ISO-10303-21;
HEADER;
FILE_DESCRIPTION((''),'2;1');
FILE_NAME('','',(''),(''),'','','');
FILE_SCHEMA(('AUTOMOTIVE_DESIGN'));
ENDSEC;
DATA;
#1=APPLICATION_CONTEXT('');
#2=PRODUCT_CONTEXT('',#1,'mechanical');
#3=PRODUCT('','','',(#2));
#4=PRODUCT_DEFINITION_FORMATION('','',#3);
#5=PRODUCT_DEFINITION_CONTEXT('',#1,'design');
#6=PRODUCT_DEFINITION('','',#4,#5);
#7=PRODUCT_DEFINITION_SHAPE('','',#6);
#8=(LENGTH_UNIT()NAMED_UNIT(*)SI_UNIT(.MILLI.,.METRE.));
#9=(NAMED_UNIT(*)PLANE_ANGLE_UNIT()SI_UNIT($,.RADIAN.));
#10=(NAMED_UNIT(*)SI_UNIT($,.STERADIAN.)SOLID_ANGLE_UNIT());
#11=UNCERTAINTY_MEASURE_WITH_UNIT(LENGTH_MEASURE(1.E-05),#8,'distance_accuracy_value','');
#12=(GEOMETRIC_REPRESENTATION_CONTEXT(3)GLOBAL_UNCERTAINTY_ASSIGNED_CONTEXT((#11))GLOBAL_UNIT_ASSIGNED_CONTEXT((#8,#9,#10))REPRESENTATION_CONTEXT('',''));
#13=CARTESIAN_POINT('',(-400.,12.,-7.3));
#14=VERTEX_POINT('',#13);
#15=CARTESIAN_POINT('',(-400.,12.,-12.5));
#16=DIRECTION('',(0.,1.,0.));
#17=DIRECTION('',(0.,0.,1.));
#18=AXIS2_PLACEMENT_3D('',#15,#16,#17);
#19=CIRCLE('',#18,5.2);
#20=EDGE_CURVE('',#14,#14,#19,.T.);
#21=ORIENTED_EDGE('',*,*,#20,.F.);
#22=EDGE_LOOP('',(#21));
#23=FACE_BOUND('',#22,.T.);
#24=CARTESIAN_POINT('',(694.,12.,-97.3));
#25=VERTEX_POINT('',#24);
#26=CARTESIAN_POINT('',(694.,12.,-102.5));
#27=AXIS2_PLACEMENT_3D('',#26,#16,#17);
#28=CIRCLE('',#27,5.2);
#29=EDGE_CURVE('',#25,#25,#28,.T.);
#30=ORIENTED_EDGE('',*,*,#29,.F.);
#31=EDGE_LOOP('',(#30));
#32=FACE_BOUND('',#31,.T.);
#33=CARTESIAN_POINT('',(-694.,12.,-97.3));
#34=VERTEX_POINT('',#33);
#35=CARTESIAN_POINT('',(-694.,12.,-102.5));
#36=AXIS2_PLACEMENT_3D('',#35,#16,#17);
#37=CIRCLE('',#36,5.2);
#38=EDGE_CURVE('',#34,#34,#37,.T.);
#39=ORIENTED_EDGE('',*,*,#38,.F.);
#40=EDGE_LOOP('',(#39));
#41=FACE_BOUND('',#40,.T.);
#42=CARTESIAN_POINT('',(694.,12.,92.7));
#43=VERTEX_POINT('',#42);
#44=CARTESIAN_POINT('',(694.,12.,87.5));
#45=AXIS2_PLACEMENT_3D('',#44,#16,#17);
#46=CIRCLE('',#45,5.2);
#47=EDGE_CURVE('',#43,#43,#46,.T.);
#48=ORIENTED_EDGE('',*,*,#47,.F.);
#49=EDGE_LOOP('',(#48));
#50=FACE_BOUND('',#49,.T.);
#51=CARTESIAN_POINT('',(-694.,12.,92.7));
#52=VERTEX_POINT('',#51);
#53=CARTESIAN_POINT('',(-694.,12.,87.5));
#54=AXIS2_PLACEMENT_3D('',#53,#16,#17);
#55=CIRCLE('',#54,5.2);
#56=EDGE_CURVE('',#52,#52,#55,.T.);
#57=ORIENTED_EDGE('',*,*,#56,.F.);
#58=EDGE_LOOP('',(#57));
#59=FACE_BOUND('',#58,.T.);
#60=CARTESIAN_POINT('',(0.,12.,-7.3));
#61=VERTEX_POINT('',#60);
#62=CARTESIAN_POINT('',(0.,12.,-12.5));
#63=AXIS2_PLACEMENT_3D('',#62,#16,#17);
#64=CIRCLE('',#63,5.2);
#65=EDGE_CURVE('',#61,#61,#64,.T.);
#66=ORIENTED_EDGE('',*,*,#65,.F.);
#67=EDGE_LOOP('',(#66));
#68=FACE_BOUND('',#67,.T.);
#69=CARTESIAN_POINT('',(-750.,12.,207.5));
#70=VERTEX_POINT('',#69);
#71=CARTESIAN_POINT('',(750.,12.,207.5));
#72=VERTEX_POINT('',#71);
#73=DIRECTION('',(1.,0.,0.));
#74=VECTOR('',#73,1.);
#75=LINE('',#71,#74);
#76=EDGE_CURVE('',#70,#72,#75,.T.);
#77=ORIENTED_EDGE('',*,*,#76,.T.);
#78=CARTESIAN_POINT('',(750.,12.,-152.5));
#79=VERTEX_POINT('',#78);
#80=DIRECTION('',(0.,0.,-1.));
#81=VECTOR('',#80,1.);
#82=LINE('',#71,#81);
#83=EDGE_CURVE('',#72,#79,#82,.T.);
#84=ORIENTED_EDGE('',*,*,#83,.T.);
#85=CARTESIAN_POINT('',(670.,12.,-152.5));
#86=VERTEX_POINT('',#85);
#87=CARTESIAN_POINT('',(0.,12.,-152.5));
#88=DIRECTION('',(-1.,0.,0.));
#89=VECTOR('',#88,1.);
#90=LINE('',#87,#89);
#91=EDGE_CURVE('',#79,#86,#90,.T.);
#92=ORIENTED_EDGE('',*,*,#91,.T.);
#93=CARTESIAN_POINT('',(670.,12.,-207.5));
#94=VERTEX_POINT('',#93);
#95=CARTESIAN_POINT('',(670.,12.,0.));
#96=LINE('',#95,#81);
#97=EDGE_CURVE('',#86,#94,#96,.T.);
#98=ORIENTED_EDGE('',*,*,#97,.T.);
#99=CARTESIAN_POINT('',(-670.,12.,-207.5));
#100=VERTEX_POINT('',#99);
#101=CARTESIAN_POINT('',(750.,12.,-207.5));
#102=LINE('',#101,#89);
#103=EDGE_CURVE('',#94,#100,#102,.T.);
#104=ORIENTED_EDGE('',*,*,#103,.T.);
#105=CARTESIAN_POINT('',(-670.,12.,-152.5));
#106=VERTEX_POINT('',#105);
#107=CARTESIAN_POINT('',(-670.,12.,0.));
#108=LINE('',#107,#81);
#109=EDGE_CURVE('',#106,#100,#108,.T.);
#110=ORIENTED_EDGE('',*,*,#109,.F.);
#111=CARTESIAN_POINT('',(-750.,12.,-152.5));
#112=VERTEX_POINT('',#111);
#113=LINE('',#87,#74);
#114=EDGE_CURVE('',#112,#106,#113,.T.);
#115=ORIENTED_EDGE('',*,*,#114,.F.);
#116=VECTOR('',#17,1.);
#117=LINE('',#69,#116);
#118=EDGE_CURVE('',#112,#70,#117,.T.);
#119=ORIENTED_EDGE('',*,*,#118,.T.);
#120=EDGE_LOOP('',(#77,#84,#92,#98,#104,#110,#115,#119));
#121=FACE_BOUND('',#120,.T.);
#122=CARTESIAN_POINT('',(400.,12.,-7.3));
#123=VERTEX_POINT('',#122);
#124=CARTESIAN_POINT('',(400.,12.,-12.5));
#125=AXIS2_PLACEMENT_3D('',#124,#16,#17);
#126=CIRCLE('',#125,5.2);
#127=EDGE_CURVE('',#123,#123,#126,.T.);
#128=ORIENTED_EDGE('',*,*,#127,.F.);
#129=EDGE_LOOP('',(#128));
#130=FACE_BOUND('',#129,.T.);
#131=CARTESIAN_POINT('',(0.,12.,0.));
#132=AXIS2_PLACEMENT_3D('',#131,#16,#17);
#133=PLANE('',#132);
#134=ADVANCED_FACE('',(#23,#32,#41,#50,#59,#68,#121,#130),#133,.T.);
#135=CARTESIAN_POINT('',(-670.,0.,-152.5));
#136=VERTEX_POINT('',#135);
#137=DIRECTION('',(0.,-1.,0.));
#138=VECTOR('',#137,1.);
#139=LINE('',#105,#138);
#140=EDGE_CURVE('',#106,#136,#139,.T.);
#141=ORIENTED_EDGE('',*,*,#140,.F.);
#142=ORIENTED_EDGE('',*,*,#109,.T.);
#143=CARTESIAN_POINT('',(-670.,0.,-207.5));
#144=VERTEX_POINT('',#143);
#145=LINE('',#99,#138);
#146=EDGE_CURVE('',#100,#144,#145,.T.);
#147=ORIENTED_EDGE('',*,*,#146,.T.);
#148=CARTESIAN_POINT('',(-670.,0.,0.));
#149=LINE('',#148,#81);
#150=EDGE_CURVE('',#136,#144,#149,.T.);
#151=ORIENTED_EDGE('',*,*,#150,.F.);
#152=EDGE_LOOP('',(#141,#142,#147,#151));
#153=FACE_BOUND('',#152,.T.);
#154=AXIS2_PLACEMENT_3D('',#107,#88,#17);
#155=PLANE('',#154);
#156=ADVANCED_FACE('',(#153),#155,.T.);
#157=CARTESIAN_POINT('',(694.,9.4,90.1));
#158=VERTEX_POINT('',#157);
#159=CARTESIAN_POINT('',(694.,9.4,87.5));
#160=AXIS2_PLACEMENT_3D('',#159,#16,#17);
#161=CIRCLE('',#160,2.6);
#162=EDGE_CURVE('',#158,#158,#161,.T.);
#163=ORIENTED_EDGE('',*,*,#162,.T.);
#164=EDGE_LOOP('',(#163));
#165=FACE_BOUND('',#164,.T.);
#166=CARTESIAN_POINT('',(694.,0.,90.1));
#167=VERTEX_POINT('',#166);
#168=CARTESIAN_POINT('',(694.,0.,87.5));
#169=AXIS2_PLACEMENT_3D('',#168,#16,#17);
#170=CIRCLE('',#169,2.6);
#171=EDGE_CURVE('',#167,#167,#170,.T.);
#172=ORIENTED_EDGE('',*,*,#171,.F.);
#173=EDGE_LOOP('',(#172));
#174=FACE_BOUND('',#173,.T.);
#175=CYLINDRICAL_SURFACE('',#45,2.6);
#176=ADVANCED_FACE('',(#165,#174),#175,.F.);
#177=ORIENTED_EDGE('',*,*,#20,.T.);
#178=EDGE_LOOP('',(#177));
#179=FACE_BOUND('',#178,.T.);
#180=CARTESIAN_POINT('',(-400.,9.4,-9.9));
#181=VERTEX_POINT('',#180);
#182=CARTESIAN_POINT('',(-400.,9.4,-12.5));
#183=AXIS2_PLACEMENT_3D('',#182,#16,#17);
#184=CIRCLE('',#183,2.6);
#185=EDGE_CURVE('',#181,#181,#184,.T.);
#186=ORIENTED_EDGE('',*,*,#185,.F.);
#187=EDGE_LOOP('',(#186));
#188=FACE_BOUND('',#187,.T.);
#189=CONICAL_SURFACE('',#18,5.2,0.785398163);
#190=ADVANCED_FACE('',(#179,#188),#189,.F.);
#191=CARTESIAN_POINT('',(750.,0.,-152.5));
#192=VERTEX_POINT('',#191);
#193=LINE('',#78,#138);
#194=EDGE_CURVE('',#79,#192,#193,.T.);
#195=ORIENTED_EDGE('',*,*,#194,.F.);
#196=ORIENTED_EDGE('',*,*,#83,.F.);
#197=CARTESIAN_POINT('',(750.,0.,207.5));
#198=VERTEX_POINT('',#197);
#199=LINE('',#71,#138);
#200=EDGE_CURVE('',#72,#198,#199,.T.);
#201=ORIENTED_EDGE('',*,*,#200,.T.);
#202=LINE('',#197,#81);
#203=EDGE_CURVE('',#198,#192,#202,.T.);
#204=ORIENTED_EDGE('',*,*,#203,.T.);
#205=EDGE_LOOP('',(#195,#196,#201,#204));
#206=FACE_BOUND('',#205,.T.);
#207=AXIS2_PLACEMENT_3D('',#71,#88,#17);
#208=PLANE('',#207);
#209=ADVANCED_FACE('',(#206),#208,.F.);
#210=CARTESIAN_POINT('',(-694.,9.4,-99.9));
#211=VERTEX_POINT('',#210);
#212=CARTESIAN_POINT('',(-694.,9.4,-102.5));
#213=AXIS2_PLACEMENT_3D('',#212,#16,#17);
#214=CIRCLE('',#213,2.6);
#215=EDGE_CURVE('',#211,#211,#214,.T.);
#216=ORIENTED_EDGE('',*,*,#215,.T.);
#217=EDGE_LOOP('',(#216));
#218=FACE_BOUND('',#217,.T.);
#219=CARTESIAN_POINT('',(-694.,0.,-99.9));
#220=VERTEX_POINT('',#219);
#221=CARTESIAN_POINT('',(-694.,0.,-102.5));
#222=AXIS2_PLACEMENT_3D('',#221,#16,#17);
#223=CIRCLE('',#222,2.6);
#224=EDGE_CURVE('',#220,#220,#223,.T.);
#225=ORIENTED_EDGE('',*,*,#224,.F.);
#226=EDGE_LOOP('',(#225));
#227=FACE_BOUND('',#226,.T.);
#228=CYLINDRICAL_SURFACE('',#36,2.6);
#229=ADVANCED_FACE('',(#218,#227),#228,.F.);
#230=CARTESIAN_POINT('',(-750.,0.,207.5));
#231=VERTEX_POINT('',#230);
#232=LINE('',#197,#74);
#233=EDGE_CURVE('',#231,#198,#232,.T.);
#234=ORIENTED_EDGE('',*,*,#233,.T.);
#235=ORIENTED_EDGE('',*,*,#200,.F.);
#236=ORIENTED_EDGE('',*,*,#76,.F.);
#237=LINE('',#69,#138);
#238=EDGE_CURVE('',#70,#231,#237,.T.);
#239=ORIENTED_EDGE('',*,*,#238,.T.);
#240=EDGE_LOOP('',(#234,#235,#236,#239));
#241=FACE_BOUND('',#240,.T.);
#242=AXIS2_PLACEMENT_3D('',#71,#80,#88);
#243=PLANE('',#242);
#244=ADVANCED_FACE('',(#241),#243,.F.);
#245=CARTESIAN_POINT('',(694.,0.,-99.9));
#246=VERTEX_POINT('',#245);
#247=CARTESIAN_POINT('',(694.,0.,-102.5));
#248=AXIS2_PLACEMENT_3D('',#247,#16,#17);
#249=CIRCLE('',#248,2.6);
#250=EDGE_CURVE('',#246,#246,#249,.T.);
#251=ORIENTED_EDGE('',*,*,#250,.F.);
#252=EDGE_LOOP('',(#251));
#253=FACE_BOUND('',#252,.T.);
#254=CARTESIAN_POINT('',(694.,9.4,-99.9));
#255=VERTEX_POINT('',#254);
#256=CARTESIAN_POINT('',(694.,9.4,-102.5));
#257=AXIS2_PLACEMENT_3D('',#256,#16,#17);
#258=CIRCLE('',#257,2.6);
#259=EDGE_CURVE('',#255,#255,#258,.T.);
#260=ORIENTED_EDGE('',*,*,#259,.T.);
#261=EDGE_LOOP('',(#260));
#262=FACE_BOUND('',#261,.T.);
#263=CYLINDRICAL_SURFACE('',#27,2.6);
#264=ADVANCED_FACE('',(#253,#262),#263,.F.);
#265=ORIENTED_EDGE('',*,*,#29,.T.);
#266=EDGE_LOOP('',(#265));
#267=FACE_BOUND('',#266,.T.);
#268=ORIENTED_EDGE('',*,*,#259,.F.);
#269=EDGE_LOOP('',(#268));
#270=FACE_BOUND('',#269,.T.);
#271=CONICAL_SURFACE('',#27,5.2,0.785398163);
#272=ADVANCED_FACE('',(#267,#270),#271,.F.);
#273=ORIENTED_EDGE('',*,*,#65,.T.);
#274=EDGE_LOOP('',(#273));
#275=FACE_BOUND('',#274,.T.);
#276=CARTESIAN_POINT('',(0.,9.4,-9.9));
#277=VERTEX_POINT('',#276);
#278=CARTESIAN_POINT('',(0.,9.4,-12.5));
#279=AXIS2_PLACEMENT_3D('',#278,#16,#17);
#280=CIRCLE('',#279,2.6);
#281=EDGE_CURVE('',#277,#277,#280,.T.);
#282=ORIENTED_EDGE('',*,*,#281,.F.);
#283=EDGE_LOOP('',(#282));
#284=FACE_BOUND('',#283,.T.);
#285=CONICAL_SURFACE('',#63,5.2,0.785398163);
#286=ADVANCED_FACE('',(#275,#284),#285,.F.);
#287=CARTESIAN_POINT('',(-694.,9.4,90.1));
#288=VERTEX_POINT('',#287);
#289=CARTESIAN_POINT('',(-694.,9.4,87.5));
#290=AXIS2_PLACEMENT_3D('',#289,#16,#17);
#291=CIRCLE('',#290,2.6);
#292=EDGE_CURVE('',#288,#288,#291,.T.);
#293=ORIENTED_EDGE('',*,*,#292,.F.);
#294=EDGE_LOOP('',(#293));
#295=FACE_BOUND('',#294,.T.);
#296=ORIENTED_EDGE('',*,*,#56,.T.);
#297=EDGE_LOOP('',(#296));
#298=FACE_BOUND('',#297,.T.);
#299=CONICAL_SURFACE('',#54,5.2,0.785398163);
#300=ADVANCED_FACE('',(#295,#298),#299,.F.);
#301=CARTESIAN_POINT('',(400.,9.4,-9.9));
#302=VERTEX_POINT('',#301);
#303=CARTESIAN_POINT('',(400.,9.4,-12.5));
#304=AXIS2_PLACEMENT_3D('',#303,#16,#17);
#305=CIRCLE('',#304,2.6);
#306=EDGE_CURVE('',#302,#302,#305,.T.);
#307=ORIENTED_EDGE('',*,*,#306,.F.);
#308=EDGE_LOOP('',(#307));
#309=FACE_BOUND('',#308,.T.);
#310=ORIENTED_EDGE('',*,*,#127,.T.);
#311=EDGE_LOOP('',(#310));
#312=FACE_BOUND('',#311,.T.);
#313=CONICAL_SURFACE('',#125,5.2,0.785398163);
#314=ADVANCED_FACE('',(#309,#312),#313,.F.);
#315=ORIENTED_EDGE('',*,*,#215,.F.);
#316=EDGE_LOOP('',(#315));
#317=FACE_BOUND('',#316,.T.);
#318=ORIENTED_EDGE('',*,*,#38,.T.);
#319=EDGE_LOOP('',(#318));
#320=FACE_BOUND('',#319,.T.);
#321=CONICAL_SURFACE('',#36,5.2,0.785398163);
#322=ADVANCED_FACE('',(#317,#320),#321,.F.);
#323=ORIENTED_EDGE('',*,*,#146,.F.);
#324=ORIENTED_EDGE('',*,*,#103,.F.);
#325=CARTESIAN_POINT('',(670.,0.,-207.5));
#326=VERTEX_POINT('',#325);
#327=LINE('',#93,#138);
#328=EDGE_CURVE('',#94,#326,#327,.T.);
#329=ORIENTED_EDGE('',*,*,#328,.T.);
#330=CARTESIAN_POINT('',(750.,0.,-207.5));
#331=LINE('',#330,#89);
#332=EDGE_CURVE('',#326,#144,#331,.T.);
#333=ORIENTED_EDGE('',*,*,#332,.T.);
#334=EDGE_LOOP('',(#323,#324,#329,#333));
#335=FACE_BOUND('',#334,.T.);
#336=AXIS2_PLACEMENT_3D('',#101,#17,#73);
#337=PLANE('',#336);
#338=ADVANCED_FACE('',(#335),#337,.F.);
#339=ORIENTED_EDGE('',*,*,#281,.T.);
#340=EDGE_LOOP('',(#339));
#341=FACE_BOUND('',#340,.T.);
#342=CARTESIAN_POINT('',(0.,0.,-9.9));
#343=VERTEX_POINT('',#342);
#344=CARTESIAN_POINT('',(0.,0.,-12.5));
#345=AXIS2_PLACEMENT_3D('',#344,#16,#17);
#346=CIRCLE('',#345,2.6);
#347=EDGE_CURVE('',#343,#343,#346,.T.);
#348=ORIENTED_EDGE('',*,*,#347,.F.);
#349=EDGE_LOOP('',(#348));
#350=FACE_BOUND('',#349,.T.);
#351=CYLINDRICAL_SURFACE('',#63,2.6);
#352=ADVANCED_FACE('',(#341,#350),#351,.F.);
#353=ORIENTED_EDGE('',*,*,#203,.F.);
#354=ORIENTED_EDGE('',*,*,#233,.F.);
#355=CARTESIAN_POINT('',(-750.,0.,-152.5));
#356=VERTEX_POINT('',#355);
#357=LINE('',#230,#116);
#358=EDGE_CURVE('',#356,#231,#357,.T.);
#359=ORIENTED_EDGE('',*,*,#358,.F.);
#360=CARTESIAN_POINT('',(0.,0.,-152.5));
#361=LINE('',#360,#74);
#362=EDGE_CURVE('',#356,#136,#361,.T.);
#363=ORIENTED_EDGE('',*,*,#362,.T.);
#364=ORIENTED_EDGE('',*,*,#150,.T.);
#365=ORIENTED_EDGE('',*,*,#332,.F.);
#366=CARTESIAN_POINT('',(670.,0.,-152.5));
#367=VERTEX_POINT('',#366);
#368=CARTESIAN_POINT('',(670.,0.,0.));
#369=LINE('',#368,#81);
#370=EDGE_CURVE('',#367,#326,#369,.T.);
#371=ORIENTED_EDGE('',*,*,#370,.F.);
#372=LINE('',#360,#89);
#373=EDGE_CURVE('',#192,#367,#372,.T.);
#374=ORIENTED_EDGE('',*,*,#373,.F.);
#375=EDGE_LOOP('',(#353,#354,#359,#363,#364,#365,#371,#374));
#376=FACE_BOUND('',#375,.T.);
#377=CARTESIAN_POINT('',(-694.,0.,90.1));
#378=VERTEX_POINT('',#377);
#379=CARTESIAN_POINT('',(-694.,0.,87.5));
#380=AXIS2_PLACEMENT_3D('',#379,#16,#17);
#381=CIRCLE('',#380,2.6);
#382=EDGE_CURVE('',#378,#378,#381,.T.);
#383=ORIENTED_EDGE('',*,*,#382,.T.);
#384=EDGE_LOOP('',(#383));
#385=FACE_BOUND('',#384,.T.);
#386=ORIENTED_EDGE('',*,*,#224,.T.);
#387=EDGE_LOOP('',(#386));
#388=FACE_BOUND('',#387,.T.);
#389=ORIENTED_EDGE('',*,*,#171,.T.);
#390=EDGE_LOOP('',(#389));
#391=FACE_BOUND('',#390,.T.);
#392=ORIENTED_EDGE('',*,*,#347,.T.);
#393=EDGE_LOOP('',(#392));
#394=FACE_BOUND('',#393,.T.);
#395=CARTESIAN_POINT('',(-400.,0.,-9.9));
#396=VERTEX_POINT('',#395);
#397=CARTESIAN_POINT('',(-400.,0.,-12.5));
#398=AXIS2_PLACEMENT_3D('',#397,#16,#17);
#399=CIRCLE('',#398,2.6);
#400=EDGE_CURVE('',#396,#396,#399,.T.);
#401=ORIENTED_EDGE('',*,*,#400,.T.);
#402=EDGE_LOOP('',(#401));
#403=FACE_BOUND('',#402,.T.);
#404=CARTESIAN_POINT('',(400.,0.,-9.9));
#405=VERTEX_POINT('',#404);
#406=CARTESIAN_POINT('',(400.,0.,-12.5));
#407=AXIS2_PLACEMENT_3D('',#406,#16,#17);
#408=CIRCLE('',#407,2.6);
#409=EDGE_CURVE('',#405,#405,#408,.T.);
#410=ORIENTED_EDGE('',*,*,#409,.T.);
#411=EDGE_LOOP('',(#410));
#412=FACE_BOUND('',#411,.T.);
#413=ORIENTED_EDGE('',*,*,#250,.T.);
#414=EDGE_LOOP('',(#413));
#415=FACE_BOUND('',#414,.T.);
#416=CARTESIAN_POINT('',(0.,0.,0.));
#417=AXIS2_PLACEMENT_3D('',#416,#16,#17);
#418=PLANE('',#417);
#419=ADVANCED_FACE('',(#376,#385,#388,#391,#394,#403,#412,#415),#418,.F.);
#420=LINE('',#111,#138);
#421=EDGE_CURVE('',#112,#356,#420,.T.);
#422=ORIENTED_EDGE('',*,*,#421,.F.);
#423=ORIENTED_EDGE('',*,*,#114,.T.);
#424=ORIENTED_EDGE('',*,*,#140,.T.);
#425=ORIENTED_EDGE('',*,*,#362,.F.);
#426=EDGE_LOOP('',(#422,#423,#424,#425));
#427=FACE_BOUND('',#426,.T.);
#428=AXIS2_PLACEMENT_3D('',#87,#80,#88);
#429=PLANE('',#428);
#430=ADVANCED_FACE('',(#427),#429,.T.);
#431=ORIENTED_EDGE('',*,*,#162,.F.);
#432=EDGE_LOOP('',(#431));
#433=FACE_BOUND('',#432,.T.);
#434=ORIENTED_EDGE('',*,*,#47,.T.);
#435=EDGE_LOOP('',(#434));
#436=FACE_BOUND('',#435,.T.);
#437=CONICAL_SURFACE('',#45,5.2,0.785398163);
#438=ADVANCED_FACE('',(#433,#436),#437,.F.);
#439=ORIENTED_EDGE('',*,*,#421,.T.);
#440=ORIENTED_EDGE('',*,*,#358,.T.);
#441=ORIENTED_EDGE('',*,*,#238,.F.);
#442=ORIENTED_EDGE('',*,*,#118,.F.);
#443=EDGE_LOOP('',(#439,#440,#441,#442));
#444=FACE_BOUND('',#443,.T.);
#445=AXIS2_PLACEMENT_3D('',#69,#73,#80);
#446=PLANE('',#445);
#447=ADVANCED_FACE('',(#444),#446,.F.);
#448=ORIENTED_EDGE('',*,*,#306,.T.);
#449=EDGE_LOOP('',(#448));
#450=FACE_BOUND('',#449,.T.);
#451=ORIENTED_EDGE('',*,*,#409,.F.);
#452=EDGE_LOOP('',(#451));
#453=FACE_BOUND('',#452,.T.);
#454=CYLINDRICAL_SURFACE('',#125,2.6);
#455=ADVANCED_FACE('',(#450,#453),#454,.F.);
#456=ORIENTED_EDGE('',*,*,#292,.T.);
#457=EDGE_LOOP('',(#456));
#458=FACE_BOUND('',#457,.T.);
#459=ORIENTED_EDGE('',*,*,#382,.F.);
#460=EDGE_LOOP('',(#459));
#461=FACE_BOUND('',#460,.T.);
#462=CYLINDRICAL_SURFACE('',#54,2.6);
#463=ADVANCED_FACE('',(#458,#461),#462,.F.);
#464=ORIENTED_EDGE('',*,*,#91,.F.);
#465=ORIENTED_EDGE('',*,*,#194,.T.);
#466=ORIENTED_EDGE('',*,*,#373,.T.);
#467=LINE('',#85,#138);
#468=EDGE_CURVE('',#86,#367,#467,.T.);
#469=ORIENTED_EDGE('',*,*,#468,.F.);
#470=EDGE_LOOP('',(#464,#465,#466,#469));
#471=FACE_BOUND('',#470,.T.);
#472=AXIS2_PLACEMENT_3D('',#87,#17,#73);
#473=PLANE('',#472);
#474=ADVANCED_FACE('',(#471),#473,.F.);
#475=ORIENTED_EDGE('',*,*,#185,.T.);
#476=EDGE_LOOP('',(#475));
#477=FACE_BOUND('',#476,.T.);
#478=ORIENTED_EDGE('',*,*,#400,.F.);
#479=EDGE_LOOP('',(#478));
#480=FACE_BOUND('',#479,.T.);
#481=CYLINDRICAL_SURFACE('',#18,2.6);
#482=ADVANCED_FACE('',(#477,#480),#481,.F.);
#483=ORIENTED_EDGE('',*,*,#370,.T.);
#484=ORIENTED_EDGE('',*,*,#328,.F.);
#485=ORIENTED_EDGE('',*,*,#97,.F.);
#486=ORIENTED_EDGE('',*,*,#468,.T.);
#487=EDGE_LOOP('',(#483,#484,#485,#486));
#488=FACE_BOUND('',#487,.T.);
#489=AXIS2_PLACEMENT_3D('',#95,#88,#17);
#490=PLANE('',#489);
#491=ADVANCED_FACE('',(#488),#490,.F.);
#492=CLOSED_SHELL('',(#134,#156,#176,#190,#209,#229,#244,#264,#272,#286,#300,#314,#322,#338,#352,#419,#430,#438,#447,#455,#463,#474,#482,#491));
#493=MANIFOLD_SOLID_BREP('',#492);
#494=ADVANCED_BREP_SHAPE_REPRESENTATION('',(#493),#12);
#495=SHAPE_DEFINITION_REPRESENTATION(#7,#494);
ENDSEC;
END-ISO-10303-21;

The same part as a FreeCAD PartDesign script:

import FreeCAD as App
import Part
import Sketcher
from FreeCAD import Vector


def add_polygon(sketch, points):
    """Adds a closed chain of lines whose ends are joined by coincident constraints."""
    first, n = sketch.GeometryCount, len(points)
    for a, b in zip(points, points[1:] + points[:1]):
        sketch.addGeometry(Part.LineSegment(App.Vector(*a, 0), App.Vector(*b, 0)), False)
    for i in range(n):
        sketch.addConstraint(Sketcher.Constraint("Coincident", first + i, 2, first + (i + 1) % n, 1))

doc = App.newDocument("Part")
body = doc.addObject("PartDesign::Body", "Body")

# Sketch on XZ plane
sketch1 = body.newObject("Sketcher::SketchObject", "Sketch")
sketch1.AttachmentSupport = (doc.getObject("XZ_Plane"), [""])
sketch1.MapMode = "FlatFace"
add_polygon(sketch1, [(-750, -208), (-750, 208), (750, 208), (750, -208)])  # lines 0-3
sketch1.addConstraint([
    Sketcher.Constraint("Vertical", 0),
    Sketcher.Constraint("Horizontal", 1),
    Sketcher.Constraint("Vertical", 2),
    Sketcher.Constraint("Horizontal", 3),
    Sketcher.Constraint("Symmetric", 0, 2, 2, 2, -1, 1),
    Sketcher.Constraint("DistanceX", 1, 1, 1, 2, 1500.0),
    Sketcher.Constraint("DistanceY", 0, 1, 0, 2, 415.0),
])
pad1 = body.newObject("PartDesign::Pad", "Pad")
pad1.Profile = sketch1
pad1.Length = 12
pad1.Reversed = True

# Sketch on XZ plane
sketch2 = body.newObject("Sketcher::SketchObject", "Sketch001")
sketch2.AttachmentSupport = (doc.getObject("XZ_Plane"), [""])
sketch2.MapMode = "FlatFace"
sketch2.AttachmentOffset = App.Placement(Vector(0, 0, -12), App.Rotation())
sketch2.addGeometry([
    Part.Circle(Vector(694, -102.5, 0), Vector(0, 0, 1), 2.6),  # 0
    Part.Circle(Vector(694, 87.5, 0), Vector(0, 0, 1), 2.6),  # 1
    Part.Circle(Vector(400, -12.5, 0), Vector(0, 0, 1), 2.6),  # 2
    Part.Circle(Vector(-400, -12.5, 0), Vector(0, 0, 1), 2.6),  # 3
    Part.Circle(Vector(-694, 87.5, 0), Vector(0, 0, 1), 2.6),  # 4
    Part.Circle(Vector(-694, -102.5, 0), Vector(0, 0, 1), 2.6),  # 5
    Part.Circle(Vector(0, -12.5, 0), Vector(0, 0, 1), 2.6),  # 6
], False)
sketch2.addConstraint([
    Sketcher.Constraint("Equal", 0, 1),
    Sketcher.Constraint("Equal", 1, 2),
    Sketcher.Constraint("Equal", 2, 3),
    Sketcher.Constraint("Equal", 3, 4),
    Sketcher.Constraint("Equal", 4, 5),
    Sketcher.Constraint("Equal", 5, 6),
    Sketcher.Constraint("Symmetric", 2, 3, 3, 3, -2),
    Sketcher.Constraint("Symmetric", 1, 3, 4, 3, -2),
    Sketcher.Constraint("Symmetric", 0, 3, 5, 3, -2),
    Sketcher.Constraint("PointOnObject", 6, 3, -2),
    Sketcher.Constraint("Horizontal", 3, 3, 6, 3),
    Sketcher.Constraint("Vertical", 0, 3, 1, 3),
    Sketcher.Constraint("Diameter", 0, 5.2),
    Sketcher.Constraint("DistanceX", -1, 1, 0, 3, 694.0),
    Sketcher.Constraint("DistanceX", -1, 1, 2, 3, 400.0),
    Sketcher.Constraint("DistanceY", 0, 3, 1, 3, 190.0),
    Sketcher.Constraint("DistanceY", 0, 3, 2, 3, 90.0),
    Sketcher.Constraint("DistanceY", 0, 3, -1, 1, 102.5),
])
doc.recompute()
hole = body.newObject("PartDesign::Hole", "Hole")
hole.Profile = sketch2
hole.ThreadType = "None"
hole.Diameter = 5.2
hole.DepthType = "ThroughAll"
hole.HoleCutType = "Countersink"
hole.HoleCutDiameter = 10.4
hole.HoleCutCountersinkAngle = 90
hole.Reversed = True

# Sketch on XZ plane
sketch3 = body.newObject("Sketcher::SketchObject", "Sketch002")
sketch3.AttachmentSupport = (doc.getObject("XZ_Plane"), [""])
sketch3.MapMode = "FlatFace"
add_polygon(sketch3, [(-750, -152), (-750, -208), (-670, -208), (-670, -152)])  # lines 0-3
add_polygon(sketch3, [(670, -152), (670, -208), (750, -208), (750, -152)])  # lines 4-7
sketch3.addConstraint([
    Sketcher.Constraint("Vertical", 0),
    Sketcher.Constraint("Horizontal", 1),
    Sketcher.Constraint("Vertical", 2),
    Sketcher.Constraint("Horizontal", 3),
    Sketcher.Constraint("Vertical", 4),
    Sketcher.Constraint("Horizontal", 5),
    Sketcher.Constraint("Vertical", 6),
    Sketcher.Constraint("Horizontal", 7),
    Sketcher.Constraint("Symmetric", 1, 2, 4, 2, -2),
    Sketcher.Constraint("Symmetric", 3, 2, 6, 2, -2),
    Sketcher.Constraint("DistanceX", 1, 1, 1, 2, 80.0),
    Sketcher.Constraint("DistanceY", 0, 2, 0, 1, 55.0),
    Sketcher.Constraint("DistanceX", 0, 2, -1, 1, 750.0),
    Sketcher.Constraint("DistanceY", 0, 2, -1, 1, 207.5),
])
pocket1 = body.newObject("PartDesign::Pocket", "Pocket")
pocket1.Profile = sketch3
pocket1.Type = "ThroughAll"

doc.recompute()
